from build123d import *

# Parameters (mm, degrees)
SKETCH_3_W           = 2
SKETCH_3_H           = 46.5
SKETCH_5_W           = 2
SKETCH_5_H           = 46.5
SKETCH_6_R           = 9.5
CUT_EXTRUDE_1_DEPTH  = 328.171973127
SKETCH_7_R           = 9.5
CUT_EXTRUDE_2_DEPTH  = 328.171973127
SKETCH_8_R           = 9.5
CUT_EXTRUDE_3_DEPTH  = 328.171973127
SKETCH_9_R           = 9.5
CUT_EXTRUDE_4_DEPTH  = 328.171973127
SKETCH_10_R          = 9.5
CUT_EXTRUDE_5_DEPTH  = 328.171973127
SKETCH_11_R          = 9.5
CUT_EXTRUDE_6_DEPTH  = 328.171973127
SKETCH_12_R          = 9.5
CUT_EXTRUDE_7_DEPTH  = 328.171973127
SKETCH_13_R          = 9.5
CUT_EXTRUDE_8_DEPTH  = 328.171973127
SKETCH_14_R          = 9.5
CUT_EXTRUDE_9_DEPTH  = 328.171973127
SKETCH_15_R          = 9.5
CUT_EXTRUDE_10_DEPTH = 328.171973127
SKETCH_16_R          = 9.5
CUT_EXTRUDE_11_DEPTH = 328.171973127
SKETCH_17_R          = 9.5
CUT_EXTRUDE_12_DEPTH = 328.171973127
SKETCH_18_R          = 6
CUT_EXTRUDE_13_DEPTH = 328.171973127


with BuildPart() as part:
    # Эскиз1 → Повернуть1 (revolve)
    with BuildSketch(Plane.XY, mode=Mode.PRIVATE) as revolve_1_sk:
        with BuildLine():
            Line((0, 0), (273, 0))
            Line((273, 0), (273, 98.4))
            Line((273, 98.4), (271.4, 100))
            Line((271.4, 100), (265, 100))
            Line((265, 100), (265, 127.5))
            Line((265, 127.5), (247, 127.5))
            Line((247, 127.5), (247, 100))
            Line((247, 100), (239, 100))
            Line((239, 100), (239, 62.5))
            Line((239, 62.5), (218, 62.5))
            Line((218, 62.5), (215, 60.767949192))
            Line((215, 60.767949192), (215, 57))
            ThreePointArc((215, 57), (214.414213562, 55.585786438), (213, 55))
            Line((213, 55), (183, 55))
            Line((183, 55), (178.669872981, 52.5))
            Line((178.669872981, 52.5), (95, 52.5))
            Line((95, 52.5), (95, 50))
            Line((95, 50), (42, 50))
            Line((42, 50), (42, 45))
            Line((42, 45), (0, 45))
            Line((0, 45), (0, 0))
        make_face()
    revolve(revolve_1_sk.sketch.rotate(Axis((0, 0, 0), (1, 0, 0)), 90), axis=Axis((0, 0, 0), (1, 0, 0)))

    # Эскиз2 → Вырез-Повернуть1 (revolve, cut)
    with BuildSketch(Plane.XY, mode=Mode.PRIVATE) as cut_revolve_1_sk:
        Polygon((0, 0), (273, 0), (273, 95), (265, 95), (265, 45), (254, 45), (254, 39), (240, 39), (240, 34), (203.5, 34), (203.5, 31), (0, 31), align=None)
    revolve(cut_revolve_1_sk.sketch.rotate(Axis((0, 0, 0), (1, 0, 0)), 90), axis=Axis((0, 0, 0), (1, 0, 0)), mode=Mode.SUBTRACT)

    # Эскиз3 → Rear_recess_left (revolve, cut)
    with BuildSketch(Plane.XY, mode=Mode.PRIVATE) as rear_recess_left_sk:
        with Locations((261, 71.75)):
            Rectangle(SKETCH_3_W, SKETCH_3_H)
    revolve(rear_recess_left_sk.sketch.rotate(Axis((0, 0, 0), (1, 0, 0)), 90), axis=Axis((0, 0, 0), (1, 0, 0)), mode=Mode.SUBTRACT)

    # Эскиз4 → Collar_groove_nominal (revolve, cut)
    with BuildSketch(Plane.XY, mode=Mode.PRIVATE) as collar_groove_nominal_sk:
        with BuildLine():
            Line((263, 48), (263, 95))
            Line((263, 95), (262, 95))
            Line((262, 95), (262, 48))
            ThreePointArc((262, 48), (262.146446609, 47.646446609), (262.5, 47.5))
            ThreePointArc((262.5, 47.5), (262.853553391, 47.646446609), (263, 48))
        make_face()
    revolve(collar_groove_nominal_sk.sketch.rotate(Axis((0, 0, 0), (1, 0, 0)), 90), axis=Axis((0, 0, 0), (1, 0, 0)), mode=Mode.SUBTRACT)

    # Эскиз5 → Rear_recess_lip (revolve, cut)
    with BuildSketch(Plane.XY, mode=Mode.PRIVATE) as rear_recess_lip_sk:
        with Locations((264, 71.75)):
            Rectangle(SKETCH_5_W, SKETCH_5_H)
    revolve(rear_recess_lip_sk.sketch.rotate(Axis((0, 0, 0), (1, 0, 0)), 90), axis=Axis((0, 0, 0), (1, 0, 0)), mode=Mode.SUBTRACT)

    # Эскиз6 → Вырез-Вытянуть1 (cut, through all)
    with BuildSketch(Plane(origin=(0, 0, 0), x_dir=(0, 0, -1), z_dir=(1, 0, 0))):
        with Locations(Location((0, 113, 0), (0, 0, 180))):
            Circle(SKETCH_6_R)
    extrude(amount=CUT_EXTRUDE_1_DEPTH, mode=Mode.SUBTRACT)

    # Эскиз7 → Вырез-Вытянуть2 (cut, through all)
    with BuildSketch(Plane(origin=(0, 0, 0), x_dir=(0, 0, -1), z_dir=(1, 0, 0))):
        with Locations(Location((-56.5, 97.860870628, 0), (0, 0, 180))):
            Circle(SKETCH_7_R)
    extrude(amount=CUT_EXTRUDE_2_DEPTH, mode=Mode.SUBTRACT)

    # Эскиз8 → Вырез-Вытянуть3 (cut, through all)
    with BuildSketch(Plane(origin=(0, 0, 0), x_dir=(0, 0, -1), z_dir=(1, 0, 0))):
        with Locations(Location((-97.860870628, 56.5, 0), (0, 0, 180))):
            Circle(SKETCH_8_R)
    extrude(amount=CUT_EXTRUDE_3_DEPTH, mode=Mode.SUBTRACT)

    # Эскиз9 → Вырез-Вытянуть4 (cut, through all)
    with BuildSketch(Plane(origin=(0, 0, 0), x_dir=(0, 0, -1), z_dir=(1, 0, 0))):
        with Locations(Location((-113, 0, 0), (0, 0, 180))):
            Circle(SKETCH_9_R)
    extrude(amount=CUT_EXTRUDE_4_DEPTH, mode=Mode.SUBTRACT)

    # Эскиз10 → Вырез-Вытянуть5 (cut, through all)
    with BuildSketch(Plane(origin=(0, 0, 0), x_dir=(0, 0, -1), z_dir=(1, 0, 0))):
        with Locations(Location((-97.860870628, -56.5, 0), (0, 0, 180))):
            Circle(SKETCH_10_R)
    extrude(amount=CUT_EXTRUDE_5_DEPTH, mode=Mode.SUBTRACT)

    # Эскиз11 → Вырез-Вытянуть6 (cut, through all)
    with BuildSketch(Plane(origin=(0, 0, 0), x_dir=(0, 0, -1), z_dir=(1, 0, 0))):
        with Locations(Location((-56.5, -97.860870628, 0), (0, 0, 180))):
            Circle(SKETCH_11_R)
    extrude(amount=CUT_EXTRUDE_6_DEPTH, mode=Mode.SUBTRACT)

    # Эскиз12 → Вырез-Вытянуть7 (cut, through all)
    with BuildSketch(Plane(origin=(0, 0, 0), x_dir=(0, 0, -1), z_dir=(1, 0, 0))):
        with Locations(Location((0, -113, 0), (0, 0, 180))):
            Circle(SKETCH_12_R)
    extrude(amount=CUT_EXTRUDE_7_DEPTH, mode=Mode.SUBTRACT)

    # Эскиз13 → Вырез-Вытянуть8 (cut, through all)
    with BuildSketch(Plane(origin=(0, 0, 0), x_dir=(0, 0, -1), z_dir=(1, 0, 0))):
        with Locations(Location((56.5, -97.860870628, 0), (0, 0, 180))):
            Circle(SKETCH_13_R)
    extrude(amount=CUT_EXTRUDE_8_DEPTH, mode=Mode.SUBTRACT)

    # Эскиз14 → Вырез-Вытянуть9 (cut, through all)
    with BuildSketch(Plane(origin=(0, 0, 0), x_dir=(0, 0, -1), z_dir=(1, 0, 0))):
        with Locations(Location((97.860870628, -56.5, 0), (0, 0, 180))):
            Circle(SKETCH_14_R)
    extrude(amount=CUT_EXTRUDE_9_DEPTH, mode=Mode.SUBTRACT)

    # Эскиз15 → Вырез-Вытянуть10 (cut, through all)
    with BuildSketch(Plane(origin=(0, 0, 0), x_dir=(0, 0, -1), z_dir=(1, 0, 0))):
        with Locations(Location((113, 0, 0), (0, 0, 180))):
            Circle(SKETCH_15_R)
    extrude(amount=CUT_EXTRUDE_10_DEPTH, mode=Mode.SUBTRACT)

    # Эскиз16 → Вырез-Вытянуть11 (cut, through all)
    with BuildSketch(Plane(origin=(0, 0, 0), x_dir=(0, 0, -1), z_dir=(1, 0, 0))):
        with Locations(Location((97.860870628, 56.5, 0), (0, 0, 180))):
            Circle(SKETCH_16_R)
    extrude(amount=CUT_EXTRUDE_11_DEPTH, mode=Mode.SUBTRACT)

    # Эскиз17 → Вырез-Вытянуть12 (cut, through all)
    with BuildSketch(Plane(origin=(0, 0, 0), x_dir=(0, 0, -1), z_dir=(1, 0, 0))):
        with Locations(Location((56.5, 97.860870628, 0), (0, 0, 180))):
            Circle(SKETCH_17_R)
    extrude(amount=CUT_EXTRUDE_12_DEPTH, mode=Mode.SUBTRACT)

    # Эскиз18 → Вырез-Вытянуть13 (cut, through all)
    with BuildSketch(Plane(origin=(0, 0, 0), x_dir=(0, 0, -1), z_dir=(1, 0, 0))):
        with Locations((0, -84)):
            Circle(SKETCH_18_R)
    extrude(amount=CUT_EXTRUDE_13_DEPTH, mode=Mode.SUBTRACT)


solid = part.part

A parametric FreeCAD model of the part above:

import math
import FreeCAD as App
import Part
import Sketcher

V = App.Vector
Q = App.Units.Quantity


def add_polygon(sketch, points):
    """Adds a closed chain of lines whose ends are joined by coincident constraints."""
    first, n = sketch.GeometryCount, len(points)
    for a, b in zip(points, points[1:] + points[:1]):
        sketch.addGeometry(Part.LineSegment(App.Vector(*a, 0), App.Vector(*b, 0)), False)
    for i in range(n):
        sketch.addConstraint(Sketcher.Constraint("Coincident", first + i, 2, first + (i + 1) % n, 1))

doc = App.newDocument("Part")
body = doc.addObject("PartDesign::Body", "Body")

sketch1 = doc.addObject("Sketcher::SketchObject", "Sketch")
body.addObject(sketch1)
sketch1.AttachmentSupport = (doc.XY_Plane, [""])
sketch1.MapMode = "FlatFace"
sketch1.addGeometry([
    Part.LineSegment(V(0, 0, 0), V(273, 0, 0)),
    Part.LineSegment(V(273, 0, 0), V(273, 98.4, 0)),
    Part.LineSegment(V(273, 98.4, 0), V(271.4, 100, 0)),
    Part.LineSegment(V(271.4, 100, 0), V(265, 100, 0)),
    Part.LineSegment(V(265, 100, 0), V(265, 127.5, 0)),
    Part.LineSegment(V(265, 127.5, 0), V(247, 127.5, 0)),
    Part.LineSegment(V(247, 127.5, 0), V(247, 100, 0)),
    Part.LineSegment(V(247, 100, 0), V(239, 100, 0)),
    Part.LineSegment(V(239, 100, 0), V(239, 62.5, 0)),
    Part.LineSegment(V(239, 62.5, 0), V(218, 62.5, 0)),
    Part.LineSegment(V(218, 62.5, 0), V(215, 60.8, 0)),
    Part.LineSegment(V(215, 60.8, 0), V(215, 57, 0)),
    Part.ArcOfCircle(Part.Circle(V(213, 57, 0), V(0, 0, 1), 2), math.radians(-90), math.radians(0)),
    Part.LineSegment(V(213, 55, 0), V(183, 55, 0)),
    Part.LineSegment(V(183, 55, 0), V(178.7, 52.5, 0)),
    Part.LineSegment(V(178.7, 52.5, 0), V(95, 52.5, 0)),
    Part.LineSegment(V(95, 52.5, 0), V(95, 50, 0)),
    Part.LineSegment(V(95, 50, 0), V(42, 50, 0)),
    Part.LineSegment(V(42, 50, 0), V(42, 45, 0)),
    Part.LineSegment(V(42, 45, 0), V(0, 45, 0)),
    Part.LineSegment(V(0, 45, 0), V(0, 0, 0)),
], False)
sketch1.addConstraint([
    Sketcher.Constraint("Coincident", 0, 2, 1, 1),
    Sketcher.Constraint("Coincident", 1, 2, 2, 1),
    Sketcher.Constraint("Coincident", 2, 2, 3, 1),
    Sketcher.Constraint("Coincident", 3, 2, 4, 1),
    Sketcher.Constraint("Coincident", 4, 2, 5, 1),
    Sketcher.Constraint("Coincident", 5, 2, 6, 1),
    Sketcher.Constraint("Coincident", 6, 2, 7, 1),
    Sketcher.Constraint("Coincident", 7, 2, 8, 1),
    Sketcher.Constraint("Coincident", 8, 2, 9, 1),
    Sketcher.Constraint("Coincident", 9, 2, 10, 1),
    Sketcher.Constraint("Coincident", 10, 2, 11, 1),
    Sketcher.Constraint("Tangent", 11, 2, 12, 2),
    Sketcher.Constraint("Tangent", 12, 1, 13, 1),
    Sketcher.Constraint("Coincident", 13, 2, 14, 1),
    Sketcher.Constraint("Coincident", 14, 2, 15, 1),
    Sketcher.Constraint("Coincident", 15, 2, 16, 1),
    Sketcher.Constraint("Coincident", 16, 2, 17, 1),
    Sketcher.Constraint("Coincident", 17, 2, 18, 1),
    Sketcher.Constraint("Coincident", 18, 2, 19, 1),
    Sketcher.Constraint("Coincident", 19, 2, 20, 1),
    Sketcher.Constraint("Coincident", 20, 2, 0, 1),
    Sketcher.Constraint("Horizontal", 0),
    Sketcher.Constraint("Vertical", 1),
    Sketcher.Constraint("Horizontal", 3),
    Sketcher.Constraint("Vertical", 4),
    Sketcher.Constraint("Horizontal", 5),
    Sketcher.Constraint("Vertical", 6),
    Sketcher.Constraint("Horizontal", 7),
    Sketcher.Constraint("Vertical", 8),
    Sketcher.Constraint("Horizontal", 9),
    Sketcher.Constraint("Vertical", 11),
    Sketcher.Constraint("Horizontal", 13),
    Sketcher.Constraint("Horizontal", 15),
    Sketcher.Constraint("Vertical", 16),
    Sketcher.Constraint("Horizontal", 17),
    Sketcher.Constraint("Vertical", 18),
    Sketcher.Constraint("Horizontal", 19),
    Sketcher.Constraint("Vertical", 20),
    Sketcher.Constraint("Coincident", 20, 2, -1, 1),
    Sketcher.Constraint("Parallel", 10, 14),
    Sketcher.Constraint("Horizontal", 3, 2, 6, 2),
    Sketcher.Constraint("Radius", 12, 2.0),
    Sketcher.Constraint("DistanceX", 0, 1, 0, 2, 273.0),
    Sketcher.Constraint("DistanceX", 5, 2, 5, 1, 18.0),
    Sketcher.Constraint("DistanceX", 7, 2, 7, 1, 8.0),
    Sketcher.Constraint("DistanceX", 9, 2, 9, 1, 21.0),
    Sketcher.Constraint("DistanceX", 13, 2, 13, 1, 30.0),
    Sketcher.Constraint("DistanceX", 17, 2, 17, 1, 53.0),
    Sketcher.Constraint("DistanceX", 19, 2, 19, 1, 42.0),
    Sketcher.Constraint("DistanceY", 18, 2, 18, 1, 5.0),
    Sketcher.Constraint("DistanceY", 20, 2, 20, 1, 45.0),
    Sketcher.Constraint("Angle", 2, Q("135 deg")),
    Sketcher.Constraint("Angle", 10, Q("-150 deg")),
    Sketcher.Constraint("Distance", 14, 5.0),
    Sketcher.Constraint("DistanceX", 3, 2, 3, 1, 6.4),
    Sketcher.Constraint("DistanceY", 1, 1, 1, 2, 98.4),
    Sketcher.Constraint("DistanceY", 4, 1, 4, 2, 27.5),
    Sketcher.Constraint("DistanceY", 8, 2, 8, 1, 37.5),
    Sketcher.Constraint("DistanceY", 16, 2, 16, 1, 2.5),
    Sketcher.Constraint("DistanceX", -1, 1, 12, 3, 213.0),
    Sketcher.Constraint("DistanceY", -1, 1, 2, 2, 100.0),
])
revolution = doc.addObject("PartDesign::Revolution", "Revolution")
body.addObject(revolution)
revolution.Profile = sketch1
revolution.ReferenceAxis = (sketch1, ["H_Axis"])
revolution.Angle = 360

sketch2 = doc.addObject("Sketcher::SketchObject", "Sketch001")
body.addObject(sketch2)
sketch2.AttachmentSupport = (doc.XY_Plane, [""])
sketch2.MapMode = "FlatFace"
add_polygon(sketch2, [(0, 0), (273, 0), (273, 95), (265, 95), (265, 45), (254, 45), (254, 39), (240, 39), (240, 34), (203.5, 34), (203.5, 31), (0, 31)])
sketch2.addConstraint([
    Sketcher.Constraint("Horizontal", 0),
    Sketcher.Constraint("Vertical", 1),
    Sketcher.Constraint("Horizontal", 2),
    Sketcher.Constraint("Vertical", 3),
    Sketcher.Constraint("Horizontal", 4),
    Sketcher.Constraint("Vertical", 5),
    Sketcher.Constraint("Horizontal", 6),
    Sketcher.Constraint("Vertical", 7),
    Sketcher.Constraint("Horizontal", 8),
    Sketcher.Constraint("Vertical", 9),
    Sketcher.Constraint("Horizontal", 10),
    Sketcher.Constraint("Vertical", 11),
    Sketcher.Constraint("Coincident", 11, 2, -1, 1),
    Sketcher.Constraint("DistanceX", 0, 1, 0, 2, 273.0),
    Sketcher.Constraint("DistanceX", 2, 2, 2, 1, 8.0),
    Sketcher.Constraint("DistanceX", 4, 2, 4, 1, 11.0),
    Sketcher.Constraint("DistanceX", 6, 2, 6, 1, 14.0),
    Sketcher.Constraint("DistanceY", 1, 1, 1, 2, 95.0),
    Sketcher.Constraint("DistanceY", 3, 2, 3, 1, 50.0),
    Sketcher.Constraint("DistanceY", 5, 2, 5, 1, 6.0),
    Sketcher.Constraint("DistanceY", 7, 2, 7, 1, 5.0),
    Sketcher.Constraint("DistanceY", 9, 2, 9, 1, 3.0),
    Sketcher.Constraint("DistanceX", 8, 2, 8, 1, 36.5),
])
groove = doc.addObject("PartDesign::Groove", "Groove")
body.addObject(groove)
groove.Profile = sketch2
groove.ReferenceAxis = (sketch2, ["H_Axis"])
groove.Angle = 360

sketch3 = doc.addObject("Sketcher::SketchObject", "Sketch002")
body.addObject(sketch3)
sketch3.AttachmentSupport = (doc.XY_Plane, [""])
sketch3.MapMode = "FlatFace"
add_polygon(sketch3, [(260, 95), (260, 48.5), (262, 48.5), (262, 95)])
sketch3.addConstraint([
    Sketcher.Constraint("Vertical", 0),
    Sketcher.Constraint("Horizontal", 1),
    Sketcher.Constraint("Vertical", 2),
    Sketcher.Constraint("Horizontal", 3),
    Sketcher.Constraint("DistanceX", 1, 1, 1, 2, 2.0),
    Sketcher.Constraint("DistanceY", 0, 2, 0, 1, 46.5),
    Sketcher.Constraint("DistanceX", -1, 1, 0, 2, 260.0),
    Sketcher.Constraint("DistanceY", -1, 1, 2, 2, 95.0),
])
groove2 = doc.addObject("PartDesign::Groove", "Groove001")
body.addObject(groove2)
groove2.Profile = sketch3
groove2.ReferenceAxis = (sketch3, ["H_Axis"])
groove2.Angle = 360

sketch4 = doc.addObject("Sketcher::SketchObject", "Sketch003")
body.addObject(sketch4)
sketch4.AttachmentSupport = (doc.XY_Plane, [""])
sketch4.MapMode = "FlatFace"
sketch4.addGeometry([
    Part.LineSegment(V(263, 48, 0), V(263, 95, 0)),
    Part.LineSegment(V(263, 95, 0), V(262, 95, 0)),
    Part.LineSegment(V(262, 95, 0), V(262, 48, 0)),
    Part.ArcOfCircle(Part.Circle(V(262.5, 48, 0), V(0, 0, 1), 0.5), math.radians(180), math.radians(270)),
    Part.ArcOfCircle(Part.Circle(V(262.5, 48, 0), V(0, 0, 1), 0.5), math.radians(-90), math.radians(0)),
], False)
sketch4.addConstraint([
    Sketcher.Constraint("Coincident", 0, 2, 1, 1),
    Sketcher.Constraint("Coincident", 1, 2, 2, 1),
    Sketcher.Constraint("Tangent", 2, 2, 3, 1),
    Sketcher.Constraint("Tangent", 3, 2, 4, 1),
    Sketcher.Constraint("Tangent", 4, 2, 0, 1),
    Sketcher.Constraint("Vertical", 0),
    Sketcher.Constraint("Horizontal", 1),
    Sketcher.Constraint("Vertical", 2),
    Sketcher.Constraint("Equal", 3, 4),
    Sketcher.Constraint("Vertical", 4, 3, 3, 2),
    Sketcher.Constraint("Radius", 3, 0.5),
    Sketcher.Constraint("DistanceY", 0, 1, 0, 2, 47.0),
    Sketcher.Constraint("DistanceY", -1, 1, 3, 3, 48.0),
    Sketcher.Constraint("DistanceX", -1, 1, 0, 2, 263.0),
])
groove3 = doc.addObject("PartDesign::Groove", "Groove002")
body.addObject(groove3)
groove3.Profile = sketch4
groove3.ReferenceAxis = (sketch4, ["H_Axis"])
groove3.Angle = 360

sketch5 = doc.addObject("Sketcher::SketchObject", "Sketch004")
body.addObject(sketch5)
sketch5.AttachmentSupport = (doc.XY_Plane, [""])
sketch5.MapMode = "FlatFace"
add_polygon(sketch5, [(263, 95), (263, 48.5), (265, 48.5), (265, 95)])
sketch5.addConstraint([
    Sketcher.Constraint("Vertical", 0),
    Sketcher.Constraint("Horizontal", 1),
    Sketcher.Constraint("Vertical", 2),
    Sketcher.Constraint("Horizontal", 3),
    Sketcher.Constraint("DistanceX", 1, 1, 1, 2, 2.0),
    Sketcher.Constraint("DistanceY", 0, 2, 0, 1, 46.5),
    Sketcher.Constraint("DistanceX", -1, 1, 0, 2, 263.0),
    Sketcher.Constraint("DistanceY", -1, 1, 2, 2, 95.0),
])
groove4 = doc.addObject("PartDesign::Groove", "Groove003")
body.addObject(groove4)
groove4.Profile = sketch5
groove4.ReferenceAxis = (sketch5, ["H_Axis"])
groove4.Angle = 360

sketch6 = doc.addObject("Sketcher::SketchObject", "Sketch005")
body.addObject(sketch6)
sketch6.AttachmentSupport = (doc.YZ_Plane, [""])
sketch6.MapMode = "FlatFace"
sketch6.addGeometry(Part.Circle(V(113, 0, 0), V(0, 0, 1), 10), False)
sketch6.addConstraint([
    Sketcher.Constraint("PointOnObject", 0, 3, -1),
    Sketcher.Constraint("Diameter", 0, 19.0),
    Sketcher.Constraint("DistanceX", -1, 1, 0, 3, 113.0),
])
pocket1 = doc.addObject("PartDesign::Pocket", "Pocket")
body.addObject(pocket1)
pocket1.Profile = sketch6
pocket1.Type = "ThroughAll"
pocket1.Reversed = True

sketch7 = doc.addObject("Sketcher::SketchObject", "Sketch006")
body.addObject(sketch7)
sketch7.AttachmentSupport = (doc.YZ_Plane, [""])
sketch7.MapMode = "FlatFace"
sketch7.addGeometry(Part.Circle(V(98, 56, 0), V(0, 0, 1), 10), False)
sketch7.addConstraint([
    Sketcher.Constraint("Diameter", 0, 19.0),
    Sketcher.Constraint("DistanceY", -1, 1, 0, 3, 56.5),
    Sketcher.Constraint("DistanceX", -1, 1, 0, 3, 97.860871),
])
pocket2 = doc.addObject("PartDesign::Pocket", "Pocket001")
body.addObject(pocket2)
pocket2.Profile = sketch7
pocket2.Type = "ThroughAll"
pocket2.Reversed = True

sketch8 = doc.addObject("Sketcher::SketchObject", "Sketch007")
body.addObject(sketch8)
sketch8.AttachmentSupport = (doc.YZ_Plane, [""])
sketch8.MapMode = "FlatFace"
sketch8.addGeometry(Part.Circle(V(56, 98, 0), V(0, 0, 1), 10), False)
sketch8.addConstraint([
    Sketcher.Constraint("Diameter", 0, 19.0),
    Sketcher.Constraint("DistanceX", -1, 1, 0, 3, 56.5),
    Sketcher.Constraint("DistanceY", -1, 1, 0, 3, 97.860871),
])
pocket3 = doc.addObject("PartDesign::Pocket", "Pocket002")
body.addObject(pocket3)
pocket3.Profile = sketch8
pocket3.Type = "ThroughAll"
pocket3.Reversed = True

sketch9 = doc.addObject("Sketcher::SketchObject", "Sketch008")
body.addObject(sketch9)
sketch9.AttachmentSupport = (doc.YZ_Plane, [""])
sketch9.MapMode = "FlatFace"
sketch9.addGeometry(Part.Circle(V(0, 113, 0), V(0, 0, 1), 10), False)
sketch9.addConstraint([
    Sketcher.Constraint("PointOnObject", 0, 3, -2),
    Sketcher.Constraint("Diameter", 0, 19.0),
    Sketcher.Constraint("DistanceY", -1, 1, 0, 3, 113.0),
])
pocket4 = doc.addObject("PartDesign::Pocket", "Pocket003")
body.addObject(pocket4)
pocket4.Profile = sketch9
pocket4.Type = "ThroughAll"
pocket4.Reversed = True

sketch10 = doc.addObject("Sketcher::SketchObject", "Sketch009")
body.addObject(sketch10)
sketch10.AttachmentSupport = (doc.YZ_Plane, [""])
sketch10.MapMode = "FlatFace"
sketch10.addGeometry(Part.Circle(V(-56, 98, 0), V(0, 0, 1), 10), False)
sketch10.addConstraint([
    Sketcher.Constraint("Diameter", 0, 19.0),
    Sketcher.Constraint("DistanceX", 0, 3, -1, 1, 56.5),
    Sketcher.Constraint("DistanceY", -1, 1, 0, 3, 97.860871),
])
pocket5 = doc.addObject("PartDesign::Pocket", "Pocket004")
body.addObject(pocket5)
pocket5.Profile = sketch10
pocket5.Type = "ThroughAll"
pocket5.Reversed = True

sketch11 = doc.addObject("Sketcher::SketchObject", "Sketch010")
body.addObject(sketch11)
sketch11.AttachmentSupport = (doc.YZ_Plane, [""])
sketch11.MapMode = "FlatFace"
sketch11.addGeometry(Part.Circle(V(-98, 56, 0), V(0, 0, 1), 10), False)
sketch11.addConstraint([
    Sketcher.Constraint("Diameter", 0, 19.0),
    Sketcher.Constraint("DistanceY", -1, 1, 0, 3, 56.5),
    Sketcher.Constraint("DistanceX", 0, 3, -1, 1, 97.860871),
])
pocket6 = doc.addObject("PartDesign::Pocket", "Pocket005")
body.addObject(pocket6)
pocket6.Profile = sketch11
pocket6.Type = "ThroughAll"
pocket6.Reversed = True

sketch12 = doc.addObject("Sketcher::SketchObject", "Sketch011")
body.addObject(sketch12)
sketch12.AttachmentSupport = (doc.YZ_Plane, [""])
sketch12.MapMode = "FlatFace"
sketch12.addGeometry(Part.Circle(V(-113, 0, 0), V(0, 0, 1), 10), False)
sketch12.addConstraint([
    Sketcher.Constraint("PointOnObject", 0, 3, -1),
    Sketcher.Constraint("Diameter", 0, 19.0),
    Sketcher.Constraint("DistanceX", 0, 3, -1, 1, 113.0),
])
pocket7 = doc.addObject("PartDesign::Pocket", "Pocket006")
body.addObject(pocket7)
pocket7.Profile = sketch12
pocket7.Type = "ThroughAll"
pocket7.Reversed = True

sketch13 = doc.addObject("Sketcher::SketchObject", "Sketch012")
body.addObject(sketch13)
sketch13.AttachmentSupport = (doc.YZ_Plane, [""])
sketch13.MapMode = "FlatFace"
sketch13.addGeometry(Part.Circle(V(-98, -56, 0), V(0, 0, 1), 10), False)
sketch13.addConstraint([
    Sketcher.Constraint("Diameter", 0, 19.0),
    Sketcher.Constraint("DistanceY", 0, 3, -1, 1, 56.5),
    Sketcher.Constraint("DistanceX", 0, 3, -1, 1, 97.860871),
])
pocket8 = doc.addObject("PartDesign::Pocket", "Pocket007")
body.addObject(pocket8)
pocket8.Profile = sketch13
pocket8.Type = "ThroughAll"
pocket8.Reversed = True

sketch14 = doc.addObject("Sketcher::SketchObject", "Sketch013")
body.addObject(sketch14)
sketch14.AttachmentSupport = (doc.YZ_Plane, [""])
sketch14.MapMode = "FlatFace"
sketch14.addGeometry(Part.Circle(V(-56, -98, 0), V(0, 0, 1), 10), False)
sketch14.addConstraint([
    Sketcher.Constraint("Diameter", 0, 19.0),
    Sketcher.Constraint("DistanceX", 0, 3, -1, 1, 56.5),
    Sketcher.Constraint("DistanceY", 0, 3, -1, 1, 97.860871),
])
pocket9 = doc.addObject("PartDesign::Pocket", "Pocket008")
body.addObject(pocket9)
pocket9.Profile = sketch14
pocket9.Type = "ThroughAll"
pocket9.Reversed = True

sketch15 = doc.addObject("Sketcher::SketchObject", "Sketch014")
body.addObject(sketch15)
sketch15.AttachmentSupport = (doc.YZ_Plane, [""])
sketch15.MapMode = "FlatFace"
sketch15.addGeometry(Part.Circle(V(0, -113, 0), V(0, 0, 1), 10), False)
sketch15.addConstraint([
    Sketcher.Constraint("PointOnObject", 0, 3, -2),
    Sketcher.Constraint("Diameter", 0, 19.0),
    Sketcher.Constraint("DistanceY", 0, 3, -1, 1, 113.0),
])
pocket10 = doc.addObject("PartDesign::Pocket", "Pocket009")
body.addObject(pocket10)
pocket10.Profile = sketch15
pocket10.Type = "ThroughAll"
pocket10.Reversed = True

sketch16 = doc.addObject("Sketcher::SketchObject", "Sketch015")
body.addObject(sketch16)
sketch16.AttachmentSupport = (doc.YZ_Plane, [""])
sketch16.MapMode = "FlatFace"
sketch16.addGeometry(Part.Circle(V(56, -98, 0), V(0, 0, 1), 10), False)
sketch16.addConstraint([
    Sketcher.Constraint("Diameter", 0, 19.0),
    Sketcher.Constraint("DistanceX", -1, 1, 0, 3, 56.5),
    Sketcher.Constraint("DistanceY", 0, 3, -1, 1, 97.860871),
])
pocket11 = doc.addObject("PartDesign::Pocket", "Pocket010")
body.addObject(pocket11)
pocket11.Profile = sketch16
pocket11.Type = "ThroughAll"
pocket11.Reversed = True

sketch17 = doc.addObject("Sketcher::SketchObject", "Sketch016")
body.addObject(sketch17)
sketch17.AttachmentSupport = (doc.YZ_Plane, [""])
sketch17.MapMode = "FlatFace"
sketch17.addGeometry(Part.Circle(V(98, -56, 0), V(0, 0, 1), 10), False)
sketch17.addConstraint([
    Sketcher.Constraint("Diameter", 0, 19.0),
    Sketcher.Constraint("DistanceY", 0, 3, -1, 1, 56.5),
    Sketcher.Constraint("DistanceX", -1, 1, 0, 3, 97.860871),
])
pocket12 = doc.addObject("PartDesign::Pocket", "Pocket011")
body.addObject(pocket12)
pocket12.Profile = sketch17
pocket12.Type = "ThroughAll"
pocket12.Reversed = True

sketch18 = doc.addObject("Sketcher::SketchObject", "Sketch017")
body.addObject(sketch18)
sketch18.AttachmentSupport = (doc.YZ_Plane, [""])
sketch18.MapMode = "FlatFace"
sketch18.addGeometry(Part.Circle(V(-84, 0, 0), V(0, 0, 1), 6), False)
sketch18.addConstraint([
    Sketcher.Constraint("PointOnObject", 0, 3, -1),
    Sketcher.Constraint("Diameter", 0, 12.0),
    Sketcher.Constraint("DistanceX", 0, 3, -1, 1, 84.0),
])
pocket13 = doc.addObject("PartDesign::Pocket", "Pocket012")
body.addObject(pocket13)
pocket13.Profile = sketch18
pocket13.Type = "ThroughAll"
pocket13.Reversed = True

doc.recompute()
